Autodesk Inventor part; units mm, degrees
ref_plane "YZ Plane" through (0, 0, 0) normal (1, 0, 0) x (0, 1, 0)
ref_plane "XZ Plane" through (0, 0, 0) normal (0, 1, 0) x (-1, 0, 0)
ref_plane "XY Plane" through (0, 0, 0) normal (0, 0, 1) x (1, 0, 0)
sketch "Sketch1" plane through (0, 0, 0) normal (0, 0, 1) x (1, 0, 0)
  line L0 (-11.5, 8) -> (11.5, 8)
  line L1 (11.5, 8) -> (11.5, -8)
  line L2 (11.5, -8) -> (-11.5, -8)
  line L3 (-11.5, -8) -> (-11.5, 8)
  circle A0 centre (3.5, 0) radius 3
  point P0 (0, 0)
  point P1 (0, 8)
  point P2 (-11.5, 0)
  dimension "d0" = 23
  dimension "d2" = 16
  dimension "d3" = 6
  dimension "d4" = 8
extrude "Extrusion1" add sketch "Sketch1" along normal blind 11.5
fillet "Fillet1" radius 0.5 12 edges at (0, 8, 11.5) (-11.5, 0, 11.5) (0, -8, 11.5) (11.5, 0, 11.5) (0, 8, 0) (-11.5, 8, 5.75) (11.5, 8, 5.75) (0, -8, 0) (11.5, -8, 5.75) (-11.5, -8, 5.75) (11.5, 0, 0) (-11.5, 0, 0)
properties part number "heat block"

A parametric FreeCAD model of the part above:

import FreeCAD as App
import Part
import Sketcher
from FreeCAD import Vector


def edges_at(feature, points):
    """Names of the edges that pass closest to the given points."""
    edges = feature.Shape.Edges
    near = lambda p: min(range(len(edges)), key=lambda i: edges[i].distToShape(Part.Vertex(*p))[0])
    return sorted({f"Edge{near(p) + 1}" for p in points})

doc = App.newDocument("Part")
body = doc.addObject("PartDesign::Body", "Body")

sketch1 = body.newObject("Sketcher::SketchObject", "Sketch")
sketch1.AttachmentSupport = (doc.getObject("XY_Plane"), [""])
sketch1.MapMode = "FlatFace"
sketch1.addGeometry(Part.LineSegment(Vector(11.5, 8, 0), Vector(-11.5, 8, 0)), False)
sketch1.addGeometry(Part.LineSegment(Vector(-11.5, 8, 0), Vector(-11.5, -8, 0)), False)
sketch1.addGeometry(Part.LineSegment(Vector(-11.5, -8, 0), Vector(11.5, -8, 0)), False)
sketch1.addGeometry(Part.LineSegment(Vector(11.5, -8, 0), Vector(11.5, 8, 0)), False)
sketch1.addGeometry(Part.Circle(Vector(3.5, 0, 0), Vector(0, 0, 1), 3), False)
sketch1.addConstraint(Sketcher.Constraint("Coincident", 0, 2, 1, 1))
sketch1.addConstraint(Sketcher.Constraint("Coincident", 1, 2, 2, 1))
sketch1.addConstraint(Sketcher.Constraint("Coincident", 2, 2, 3, 1))
sketch1.addConstraint(Sketcher.Constraint("Coincident", 3, 2, 0, 1))
sketch1.addConstraint(Sketcher.Constraint("Horizontal", 0))
sketch1.addConstraint(Sketcher.Constraint("Vertical", 1))
sketch1.addConstraint(Sketcher.Constraint("Horizontal", 2))
sketch1.addConstraint(Sketcher.Constraint("Vertical", 3))
sketch1.addConstraint(Sketcher.Constraint("Symmetric", 0, 2, 2, 2, -1, 1))
sketch1.addConstraint(Sketcher.Constraint("PointOnObject", 4, 3, -1))
sketch1.addConstraint(Sketcher.Constraint("Diameter", 4, 6.0))
sketch1.addConstraint(Sketcher.Constraint("DistanceX", 0, 2, 0, 1, 23.0))
sketch1.addConstraint(Sketcher.Constraint("DistanceY", 1, 2, 1, 1, 16.0))
sketch1.addConstraint(Sketcher.Constraint("DistanceX", 4, 3, 2, 2, 8.0))
pad1 = body.newObject("PartDesign::Pad", "Pad")
pad1.Profile = sketch1
pad1.Length = 11.5
doc.recompute()

fillet = body.newObject("PartDesign::Fillet", "Fillet")
fillet.Base = (pad1, edges_at(pad1, [
    (0, 8, 11.5),
    (-11.5, 0, 11.5),
    (0, -8, 11.5),
    (11.5, 0, 11.5),
    (0, 8, 0),
    (-11.5, 8, 5.75),
    (11.5, 8, 5.75),
    (0, -8, 0),
    (11.5, -8, 5.75),
    (-11.5, -8, 5.75),
    (11.5, 0, 0),
    (-11.5, 0, 0),
]))
fillet.Radius = 0.5

doc.recompute()
